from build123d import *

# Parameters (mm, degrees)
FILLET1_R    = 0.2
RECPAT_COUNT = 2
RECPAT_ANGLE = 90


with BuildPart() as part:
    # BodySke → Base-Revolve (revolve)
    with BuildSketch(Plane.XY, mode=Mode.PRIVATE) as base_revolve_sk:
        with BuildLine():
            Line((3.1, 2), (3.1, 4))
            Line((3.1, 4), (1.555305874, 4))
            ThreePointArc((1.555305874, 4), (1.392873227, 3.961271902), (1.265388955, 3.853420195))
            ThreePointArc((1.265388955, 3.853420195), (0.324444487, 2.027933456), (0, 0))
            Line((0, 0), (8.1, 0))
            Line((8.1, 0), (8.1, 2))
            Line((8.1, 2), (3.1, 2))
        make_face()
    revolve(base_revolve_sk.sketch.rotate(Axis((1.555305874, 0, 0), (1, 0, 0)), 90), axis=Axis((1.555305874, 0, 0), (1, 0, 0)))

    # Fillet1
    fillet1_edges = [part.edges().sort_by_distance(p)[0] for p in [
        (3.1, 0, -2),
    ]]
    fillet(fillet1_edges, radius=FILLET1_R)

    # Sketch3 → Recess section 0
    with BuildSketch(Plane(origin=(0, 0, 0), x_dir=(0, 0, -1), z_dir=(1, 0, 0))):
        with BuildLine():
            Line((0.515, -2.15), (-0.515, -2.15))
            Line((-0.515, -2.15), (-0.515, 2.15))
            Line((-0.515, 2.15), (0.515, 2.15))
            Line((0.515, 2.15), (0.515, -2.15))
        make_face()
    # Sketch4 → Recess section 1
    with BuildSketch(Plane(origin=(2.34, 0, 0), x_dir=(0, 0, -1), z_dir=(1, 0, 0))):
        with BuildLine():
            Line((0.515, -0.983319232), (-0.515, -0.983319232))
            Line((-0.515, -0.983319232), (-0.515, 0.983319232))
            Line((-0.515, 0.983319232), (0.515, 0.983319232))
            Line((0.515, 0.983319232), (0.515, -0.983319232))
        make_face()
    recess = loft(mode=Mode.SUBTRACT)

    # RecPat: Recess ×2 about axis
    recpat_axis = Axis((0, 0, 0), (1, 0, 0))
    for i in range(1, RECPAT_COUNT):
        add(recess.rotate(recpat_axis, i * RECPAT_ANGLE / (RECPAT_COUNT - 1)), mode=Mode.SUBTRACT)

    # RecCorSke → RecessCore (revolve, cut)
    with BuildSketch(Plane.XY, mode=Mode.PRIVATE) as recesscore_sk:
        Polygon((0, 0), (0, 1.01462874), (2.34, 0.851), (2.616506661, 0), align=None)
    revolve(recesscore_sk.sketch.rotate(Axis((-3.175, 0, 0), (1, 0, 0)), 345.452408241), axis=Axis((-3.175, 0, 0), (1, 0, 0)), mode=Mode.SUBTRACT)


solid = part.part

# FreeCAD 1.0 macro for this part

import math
import FreeCAD as App
import Part
import Sketcher
from FreeCAD import Vector
Q = App.Units.Quantity


def edges_at(feature, points):
    """Names of the edges that pass closest to the given points."""
    edges = feature.Shape.Edges
    near = lambda p: min(range(len(edges)), key=lambda i: edges[i].distToShape(Part.Vertex(*p))[0])
    return sorted({f"Edge{near(p) + 1}" for p in points})

doc = App.newDocument("Part")
body = doc.addObject("PartDesign::Body", "Body")

sketch1 = body.newObject("Sketcher::SketchObject", "Sketch")
sketch1.AttachmentSupport = (doc.getObject("XY_Plane"), [""])
sketch1.MapMode = "FlatFace"
sketch1.addGeometry(Part.LineSegment(Vector(3.1, 2, 0), Vector(3.1, 4, 0)), False)
sketch1.addGeometry(Part.LineSegment(Vector(3.1, 4, 0), Vector(1.56, 4, 0)), False)
sketch1.addGeometry(Part.ArcOfCircle(Part.Circle(Vector(1.56, 3.64, 0), Vector(0, 0, 1), 0.36), math.radians(90), math.radians(144)), False)
sketch1.addGeometry(Part.ArcOfCircle(Part.Circle(Vector(6.5, 0, 0), Vector(0, 0, 1), 6.5), math.radians(144), math.radians(180)), False)
sketch1.addGeometry(Part.LineSegment(Vector(0, 0, 0), Vector(8.1, 0, 0)), False)
sketch1.addGeometry(Part.LineSegment(Vector(8.1, 0, 0), Vector(8.1, 2, 0)), False)
sketch1.addGeometry(Part.LineSegment(Vector(8.1, 2, 0), Vector(3.1, 2, 0)), False)
sketch1.addConstraint(Sketcher.Constraint("Coincident", 0, 2, 1, 1))
sketch1.addConstraint(Sketcher.Constraint("Tangent", 1, 2, 2, 1))
sketch1.addConstraint(Sketcher.Constraint("Tangent", 2, 2, 3, 1))
sketch1.addConstraint(Sketcher.Constraint("Coincident", 3, 2, 4, 1))
sketch1.addConstraint(Sketcher.Constraint("Coincident", 4, 2, 5, 1))
sketch1.addConstraint(Sketcher.Constraint("Coincident", 5, 2, 6, 1))
sketch1.addConstraint(Sketcher.Constraint("Coincident", 6, 2, 0, 1))
sketch1.addConstraint(Sketcher.Constraint("Vertical", 0))
sketch1.addConstraint(Sketcher.Constraint("Horizontal", 1))
sketch1.addConstraint(Sketcher.Constraint("Horizontal", 4))
sketch1.addConstraint(Sketcher.Constraint("Vertical", 5))
sketch1.addConstraint(Sketcher.Constraint("Horizontal", 6))
sketch1.addConstraint(Sketcher.Constraint("Coincident", 3, 2, -1, 1))
sketch1.addConstraint(Sketcher.Constraint("PointOnObject", 3, 3, -1))
sketch1.addConstraint(Sketcher.Constraint("Equal", 0, 5))
sketch1.addConstraint(Sketcher.Constraint("Radius", 3, Q("6.5 mm")))
sketch1.addConstraint(Sketcher.Constraint("DistanceX", 6, 2, 6, 1, Q("5 mm")))
sketch1.addConstraint(Sketcher.Constraint("DistanceY", 0, 1, 0, 2, Q("2 mm")))
sketch1.addConstraint(Sketcher.Constraint("Radius", 2, Q("0.36 mm")))
sketch1.addConstraint(Sketcher.Constraint("DistanceX", 4, 1, 4, 2, Q("8.1 mm")))
revolution = body.newObject("PartDesign::Revolution", "Revolution")
revolution.Profile = sketch1
revolution.ReferenceAxis = (sketch1, ["H_Axis"])
revolution.Angle = 360
doc.recompute()

fillet = body.newObject("PartDesign::Fillet", "Fillet")
fillet.Base = (revolution, edges_at(revolution, [(3.1, 0, -2)]))
fillet.Radius = 0.2

sketch2 = body.newObject("Sketcher::SketchObject", "Sketch001")
sketch2.AttachmentSupport = (doc.getObject("YZ_Plane"), [""])
sketch2.MapMode = "FlatFace"
sketch2.addGeometry(Part.LineSegment(Vector(-2.1, 0.5, 0), Vector(-2.1, -0.5, 0)), False)
sketch2.addGeometry(Part.LineSegment(Vector(-2.1, -0.5, 0), Vector(2.1, -0.5, 0)), False)
sketch2.addGeometry(Part.LineSegment(Vector(2.1, -0.5, 0), Vector(2.1, 0.5, 0)), False)
sketch2.addGeometry(Part.LineSegment(Vector(2.1, 0.5, 0), Vector(-2.1, 0.5, 0)), False)
sketch2.addConstraint(Sketcher.Constraint("Coincident", 0, 2, 1, 1))
sketch2.addConstraint(Sketcher.Constraint("Coincident", 1, 2, 2, 1))
sketch2.addConstraint(Sketcher.Constraint("Coincident", 2, 2, 3, 1))
sketch2.addConstraint(Sketcher.Constraint("Coincident", 3, 2, 0, 1))
sketch2.addConstraint(Sketcher.Constraint("Vertical", 0))
sketch2.addConstraint(Sketcher.Constraint("Horizontal", 1))
sketch2.addConstraint(Sketcher.Constraint("Vertical", 2))
sketch2.addConstraint(Sketcher.Constraint("Horizontal", 3))
sketch2.addConstraint(Sketcher.Constraint("Symmetric", 0, 2, 2, 2, -1, 1))
sketch2.addConstraint(Sketcher.Constraint("DistanceX", 1, 1, 1, 2, Q("4.3 mm")))
sketch2.addConstraint(Sketcher.Constraint("DistanceY", 0, 2, 0, 1, Q("1.03 mm")))

sketch3 = body.newObject("Sketcher::SketchObject", "Sketch002")
sketch3.AttachmentSupport = (doc.getObject("YZ_Plane"), [""])
sketch3.MapMode = "FlatFace"
sketch3.AttachmentOffset = App.Placement(Vector(0, 0, 2.34), App.Rotation())
sketch3.addGeometry(Part.LineSegment(Vector(-1, 0.5, 0), Vector(-1, -0.5, 0)), False)
sketch3.addGeometry(Part.LineSegment(Vector(-1, -0.5, 0), Vector(1, -0.5, 0)), False)
sketch3.addGeometry(Part.LineSegment(Vector(1, -0.5, 0), Vector(1, 0.5, 0)), False)
sketch3.addGeometry(Part.LineSegment(Vector(1, 0.5, 0), Vector(-1, 0.5, 0)), False)
sketch3.addConstraint(Sketcher.Constraint("Coincident", 0, 2, 1, 1))
sketch3.addConstraint(Sketcher.Constraint("Coincident", 1, 2, 2, 1))
sketch3.addConstraint(Sketcher.Constraint("Coincident", 2, 2, 3, 1))
sketch3.addConstraint(Sketcher.Constraint("Coincident", 3, 2, 0, 1))
sketch3.addConstraint(Sketcher.Constraint("Vertical", 0))
sketch3.addConstraint(Sketcher.Constraint("Horizontal", 1))
sketch3.addConstraint(Sketcher.Constraint("Vertical", 2))
sketch3.addConstraint(Sketcher.Constraint("Horizontal", 3))
sketch3.addConstraint(Sketcher.Constraint("Symmetric", 0, 2, 2, 2, -1, 1))
sketch3.addConstraint(Sketcher.Constraint("DistanceY", 0, 2, 0, 1, Q("1.03 mm")))
sketch3.addConstraint(Sketcher.Constraint("DistanceX", 1, 1, 1, 2, Q("1.966638 mm")))

subtractiveloft = body.newObject("PartDesign::SubtractiveLoft", "SubtractiveLoft")
subtractiveloft.Profile = sketch2
subtractiveloft.Sections = [sketch3]
doc.recompute()

polarpattern = body.newObject("PartDesign::PolarPattern", "PolarPattern")
polarpattern.Originals = [subtractiveloft]
polarpattern.Axis = (doc.getObject("X_Axis"), [""])
polarpattern.Angle = 90
polarpattern.Occurrences = 2
body.Tip = polarpattern

sketch4 = body.newObject("Sketcher::SketchObject", "Sketch003")
sketch4.AttachmentSupport = (doc.getObject("XY_Plane"), [""])
sketch4.MapMode = "FlatFace"
sketch4.addGeometry(Part.LineSegment(Vector(0, 1, 0), Vector(0, 0, 0)), False)
sketch4.addGeometry(Part.LineSegment(Vector(0, 0, 0), Vector(2.6, 0, 0)), False)
sketch4.addGeometry(Part.LineSegment(Vector(2.6, 0, 0), Vector(2.3, 0.9, 0)), False)
sketch4.addGeometry(Part.LineSegment(Vector(2.3, 0.9, 0), Vector(0, 1, 0)), False)
sketch4.addConstraint(Sketcher.Constraint("Coincident", 0, 2, 1, 1))
sketch4.addConstraint(Sketcher.Constraint("Coincident", 1, 2, 2, 1))
sketch4.addConstraint(Sketcher.Constraint("Coincident", 2, 2, 3, 1))
sketch4.addConstraint(Sketcher.Constraint("Coincident", 3, 2, 0, 1))
sketch4.addConstraint(Sketcher.Constraint("Vertical", 0))
sketch4.addConstraint(Sketcher.Constraint("Horizontal", 1))
sketch4.addConstraint(Sketcher.Constraint("Coincident", 0, 2, -1, 1))
sketch4.addConstraint(Sketcher.Constraint("Angle", 2, Q("108 deg")))
sketch4.addConstraint(Sketcher.Constraint("Angle", 3, Q("176 deg")))
sketch4.addConstraint(Sketcher.Constraint("DistanceX", -1, 1, 2, 2, Q("2.34 mm")))
sketch4.addConstraint(Sketcher.Constraint("DistanceY", -1, 1, 2, 2, Q("0.851 mm")))
groove = body.newObject("PartDesign::Groove", "Groove")
groove.Profile = sketch4
groove.ReferenceAxis = (sketch4, ["H_Axis"])
groove.Angle = 360

doc.recompute()
